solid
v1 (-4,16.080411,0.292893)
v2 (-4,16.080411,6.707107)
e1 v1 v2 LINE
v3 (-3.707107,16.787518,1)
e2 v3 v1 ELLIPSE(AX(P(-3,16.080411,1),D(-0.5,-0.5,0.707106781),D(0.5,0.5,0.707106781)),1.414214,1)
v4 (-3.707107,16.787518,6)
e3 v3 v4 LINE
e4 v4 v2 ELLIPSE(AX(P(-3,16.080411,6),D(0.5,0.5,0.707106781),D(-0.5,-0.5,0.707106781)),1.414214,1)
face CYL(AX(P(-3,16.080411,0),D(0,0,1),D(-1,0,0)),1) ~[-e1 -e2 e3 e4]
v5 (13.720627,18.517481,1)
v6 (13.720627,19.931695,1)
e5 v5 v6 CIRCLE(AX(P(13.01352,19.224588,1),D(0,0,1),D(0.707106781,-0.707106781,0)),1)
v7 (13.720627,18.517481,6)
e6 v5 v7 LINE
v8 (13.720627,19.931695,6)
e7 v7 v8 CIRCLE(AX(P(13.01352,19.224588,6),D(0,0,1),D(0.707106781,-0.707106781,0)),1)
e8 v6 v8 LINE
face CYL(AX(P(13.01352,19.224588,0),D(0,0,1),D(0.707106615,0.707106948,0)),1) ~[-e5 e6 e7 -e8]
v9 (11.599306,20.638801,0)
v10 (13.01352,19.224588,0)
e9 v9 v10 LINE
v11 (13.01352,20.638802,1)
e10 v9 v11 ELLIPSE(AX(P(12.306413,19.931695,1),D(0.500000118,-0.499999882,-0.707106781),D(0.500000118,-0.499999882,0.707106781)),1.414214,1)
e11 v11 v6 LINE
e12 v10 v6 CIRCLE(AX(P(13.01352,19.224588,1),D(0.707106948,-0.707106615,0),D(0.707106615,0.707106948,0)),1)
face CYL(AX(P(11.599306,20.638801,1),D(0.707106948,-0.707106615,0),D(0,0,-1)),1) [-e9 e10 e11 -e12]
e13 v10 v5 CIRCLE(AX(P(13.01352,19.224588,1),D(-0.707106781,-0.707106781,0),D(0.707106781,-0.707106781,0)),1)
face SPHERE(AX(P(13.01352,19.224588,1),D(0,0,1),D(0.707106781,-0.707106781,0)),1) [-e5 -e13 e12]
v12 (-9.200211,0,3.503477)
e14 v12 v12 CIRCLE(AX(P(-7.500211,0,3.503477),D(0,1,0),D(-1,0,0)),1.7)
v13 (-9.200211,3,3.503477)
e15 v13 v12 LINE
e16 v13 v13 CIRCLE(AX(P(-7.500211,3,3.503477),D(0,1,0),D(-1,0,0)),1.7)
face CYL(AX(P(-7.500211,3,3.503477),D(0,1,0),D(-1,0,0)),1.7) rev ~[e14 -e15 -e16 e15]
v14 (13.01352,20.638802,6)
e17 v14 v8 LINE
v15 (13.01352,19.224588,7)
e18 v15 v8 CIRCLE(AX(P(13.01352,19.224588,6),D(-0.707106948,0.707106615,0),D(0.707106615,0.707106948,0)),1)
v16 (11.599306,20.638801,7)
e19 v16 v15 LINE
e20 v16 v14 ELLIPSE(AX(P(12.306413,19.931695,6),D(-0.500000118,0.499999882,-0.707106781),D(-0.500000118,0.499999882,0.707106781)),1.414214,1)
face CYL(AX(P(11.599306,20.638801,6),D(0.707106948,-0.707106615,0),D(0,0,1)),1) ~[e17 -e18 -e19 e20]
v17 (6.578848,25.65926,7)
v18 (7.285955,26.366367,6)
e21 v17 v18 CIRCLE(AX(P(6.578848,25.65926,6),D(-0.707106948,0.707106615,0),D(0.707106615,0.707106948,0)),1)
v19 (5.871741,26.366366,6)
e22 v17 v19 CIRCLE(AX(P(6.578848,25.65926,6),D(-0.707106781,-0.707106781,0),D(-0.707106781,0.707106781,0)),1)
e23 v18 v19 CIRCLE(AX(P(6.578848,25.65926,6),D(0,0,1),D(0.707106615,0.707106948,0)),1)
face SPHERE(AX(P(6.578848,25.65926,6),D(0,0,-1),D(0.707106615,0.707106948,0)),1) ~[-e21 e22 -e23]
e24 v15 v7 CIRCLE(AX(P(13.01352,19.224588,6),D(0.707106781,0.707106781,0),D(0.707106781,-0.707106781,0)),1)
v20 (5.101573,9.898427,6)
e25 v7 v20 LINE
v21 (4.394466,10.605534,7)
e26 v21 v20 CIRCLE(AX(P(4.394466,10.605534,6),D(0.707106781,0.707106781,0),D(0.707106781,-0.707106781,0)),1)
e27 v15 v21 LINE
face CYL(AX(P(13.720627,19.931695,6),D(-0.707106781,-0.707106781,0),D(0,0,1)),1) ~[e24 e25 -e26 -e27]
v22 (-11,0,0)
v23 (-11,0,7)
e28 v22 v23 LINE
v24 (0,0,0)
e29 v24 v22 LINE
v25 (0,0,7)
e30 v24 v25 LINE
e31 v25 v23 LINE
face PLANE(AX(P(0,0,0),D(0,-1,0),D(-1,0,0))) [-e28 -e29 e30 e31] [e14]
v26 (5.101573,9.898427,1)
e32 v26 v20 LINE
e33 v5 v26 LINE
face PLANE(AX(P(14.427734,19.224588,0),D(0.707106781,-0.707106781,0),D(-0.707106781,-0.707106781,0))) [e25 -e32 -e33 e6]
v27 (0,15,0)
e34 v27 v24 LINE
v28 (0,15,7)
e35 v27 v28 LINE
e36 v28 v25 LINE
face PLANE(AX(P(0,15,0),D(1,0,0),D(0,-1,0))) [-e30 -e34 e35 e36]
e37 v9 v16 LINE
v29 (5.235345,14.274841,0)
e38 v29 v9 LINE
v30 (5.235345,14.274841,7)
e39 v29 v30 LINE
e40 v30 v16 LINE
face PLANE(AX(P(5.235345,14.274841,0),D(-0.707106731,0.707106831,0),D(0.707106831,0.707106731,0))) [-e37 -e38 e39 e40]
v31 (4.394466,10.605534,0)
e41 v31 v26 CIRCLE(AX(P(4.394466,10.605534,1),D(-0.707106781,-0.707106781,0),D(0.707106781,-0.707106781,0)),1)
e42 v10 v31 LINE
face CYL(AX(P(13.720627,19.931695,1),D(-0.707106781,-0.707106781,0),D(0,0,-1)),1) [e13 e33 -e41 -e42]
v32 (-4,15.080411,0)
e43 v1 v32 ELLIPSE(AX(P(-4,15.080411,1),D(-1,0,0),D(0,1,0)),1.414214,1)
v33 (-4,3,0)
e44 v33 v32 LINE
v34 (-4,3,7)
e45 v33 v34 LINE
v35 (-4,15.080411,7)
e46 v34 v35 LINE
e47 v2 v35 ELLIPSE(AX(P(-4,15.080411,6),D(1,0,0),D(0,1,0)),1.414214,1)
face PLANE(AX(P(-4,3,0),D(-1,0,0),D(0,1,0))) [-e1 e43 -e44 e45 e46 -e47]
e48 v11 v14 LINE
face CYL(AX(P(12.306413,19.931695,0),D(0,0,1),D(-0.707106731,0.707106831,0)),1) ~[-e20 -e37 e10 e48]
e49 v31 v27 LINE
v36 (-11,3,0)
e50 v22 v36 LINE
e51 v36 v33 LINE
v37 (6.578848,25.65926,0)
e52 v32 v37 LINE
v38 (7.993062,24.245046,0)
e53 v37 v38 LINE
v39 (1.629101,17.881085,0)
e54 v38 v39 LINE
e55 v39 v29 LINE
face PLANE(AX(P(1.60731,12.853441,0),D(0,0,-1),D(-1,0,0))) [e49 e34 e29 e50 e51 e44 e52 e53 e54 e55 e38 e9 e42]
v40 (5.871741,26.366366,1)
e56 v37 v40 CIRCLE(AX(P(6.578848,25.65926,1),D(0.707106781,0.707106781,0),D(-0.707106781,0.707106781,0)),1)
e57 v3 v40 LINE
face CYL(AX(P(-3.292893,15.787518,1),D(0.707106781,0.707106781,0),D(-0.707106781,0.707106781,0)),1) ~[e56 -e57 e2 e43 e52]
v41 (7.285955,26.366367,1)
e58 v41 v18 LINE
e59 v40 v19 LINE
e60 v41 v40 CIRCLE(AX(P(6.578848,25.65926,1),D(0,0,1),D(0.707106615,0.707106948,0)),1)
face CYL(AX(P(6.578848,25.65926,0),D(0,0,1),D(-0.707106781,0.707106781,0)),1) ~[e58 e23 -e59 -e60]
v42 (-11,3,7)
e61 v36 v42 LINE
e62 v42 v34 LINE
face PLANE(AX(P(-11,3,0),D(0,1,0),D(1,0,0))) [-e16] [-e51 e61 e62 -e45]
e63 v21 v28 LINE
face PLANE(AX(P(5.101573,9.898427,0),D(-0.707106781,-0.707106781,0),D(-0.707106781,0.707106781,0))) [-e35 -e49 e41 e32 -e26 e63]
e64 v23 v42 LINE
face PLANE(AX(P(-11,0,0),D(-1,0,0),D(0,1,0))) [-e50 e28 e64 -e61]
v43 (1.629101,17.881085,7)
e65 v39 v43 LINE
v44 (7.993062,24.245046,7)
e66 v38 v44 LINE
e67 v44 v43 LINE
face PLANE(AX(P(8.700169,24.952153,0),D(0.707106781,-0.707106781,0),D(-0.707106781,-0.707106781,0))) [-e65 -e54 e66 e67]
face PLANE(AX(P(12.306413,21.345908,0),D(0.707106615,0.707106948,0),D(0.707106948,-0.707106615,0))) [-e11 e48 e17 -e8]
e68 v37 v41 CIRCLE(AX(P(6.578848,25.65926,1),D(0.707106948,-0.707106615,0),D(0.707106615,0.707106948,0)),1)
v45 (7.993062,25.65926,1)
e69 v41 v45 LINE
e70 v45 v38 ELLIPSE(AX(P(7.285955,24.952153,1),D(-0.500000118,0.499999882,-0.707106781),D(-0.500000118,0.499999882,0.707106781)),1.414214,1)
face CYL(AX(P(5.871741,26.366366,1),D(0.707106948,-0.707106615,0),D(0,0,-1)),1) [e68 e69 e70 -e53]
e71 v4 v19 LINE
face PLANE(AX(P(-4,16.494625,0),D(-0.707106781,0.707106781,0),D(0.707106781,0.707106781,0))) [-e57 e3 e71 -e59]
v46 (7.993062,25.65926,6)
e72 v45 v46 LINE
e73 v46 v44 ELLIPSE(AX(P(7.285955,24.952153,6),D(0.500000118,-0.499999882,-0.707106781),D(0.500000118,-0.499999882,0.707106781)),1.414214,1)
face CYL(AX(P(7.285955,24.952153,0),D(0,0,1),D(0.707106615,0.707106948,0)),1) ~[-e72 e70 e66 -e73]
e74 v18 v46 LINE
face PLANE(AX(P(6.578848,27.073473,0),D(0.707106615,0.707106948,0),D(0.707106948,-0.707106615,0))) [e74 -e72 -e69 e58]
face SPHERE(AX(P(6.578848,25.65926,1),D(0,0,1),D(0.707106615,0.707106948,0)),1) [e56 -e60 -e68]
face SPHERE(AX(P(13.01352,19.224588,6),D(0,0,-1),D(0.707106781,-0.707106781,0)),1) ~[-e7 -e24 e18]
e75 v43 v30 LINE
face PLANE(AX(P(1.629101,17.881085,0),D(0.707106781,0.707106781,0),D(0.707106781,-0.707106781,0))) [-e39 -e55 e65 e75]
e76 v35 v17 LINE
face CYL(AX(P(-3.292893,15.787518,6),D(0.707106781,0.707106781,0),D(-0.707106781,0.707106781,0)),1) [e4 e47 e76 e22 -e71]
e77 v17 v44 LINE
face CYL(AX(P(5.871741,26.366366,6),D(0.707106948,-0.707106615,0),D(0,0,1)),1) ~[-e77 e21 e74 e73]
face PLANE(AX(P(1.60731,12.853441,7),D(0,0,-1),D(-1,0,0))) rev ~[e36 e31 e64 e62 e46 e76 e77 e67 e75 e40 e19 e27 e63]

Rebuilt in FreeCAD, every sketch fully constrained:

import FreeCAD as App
import Part
import Sketcher
from FreeCAD import Vector
Q = App.Units.Quantity


def edges_at(feature, points):
    """Names of the edges that pass closest to the given points."""
    edges = feature.Shape.Edges
    near = lambda p: min(range(len(edges)), key=lambda i: edges[i].distToShape(Part.Vertex(*p))[0])
    return sorted({f"Edge{near(p) + 1}" for p in points})

doc = App.newDocument("Part")
body = doc.addObject("PartDesign::Body", "Body")

# Sketch on XY plane
sketch1 = doc.addObject("Sketcher::SketchObject", "Sketch")
body.addObject(sketch1)
sketch1.AttachmentSupport = (doc.XY_Plane, [""])
sketch1.MapMode = "FlatFace"
sketch1.addGeometry(Part.LineSegment(Vector(-4, 16.5, 0), Vector(-4, 3, 0)), False)
sketch1.addGeometry(Part.LineSegment(Vector(-4, 3, 0), Vector(-11, 3, 0)), False)
sketch1.addGeometry(Part.LineSegment(Vector(-11, 3, 0), Vector(-11, 0, 0)), False)
sketch1.addGeometry(Part.LineSegment(Vector(-11, 0, 0), Vector(0, 0, 0)), False)
sketch1.addGeometry(Part.LineSegment(Vector(0, 0, 0), Vector(0, 15, 0)), False)
sketch1.addGeometry(Part.LineSegment(Vector(0, 15, 0), Vector(5.1, 9.9, 0)), False)
sketch1.addGeometry(Part.LineSegment(Vector(5.1, 9.9, 0), Vector(14.4, 19.2, 0)), False)
sketch1.addGeometry(Part.LineSegment(Vector(14.4, 19.2, 0), Vector(12.3, 21.3, 0)), False)
sketch1.addGeometry(Part.LineSegment(Vector(12.3, 21.3, 0), Vector(5.2, 14.3, 0)), False)
sketch1.addGeometry(Part.LineSegment(Vector(5.2, 14.3, 0), Vector(1.6, 17.9, 0)), False)
sketch1.addGeometry(Part.LineSegment(Vector(1.6, 17.9, 0), Vector(8.7, 25, 0)), False)
sketch1.addGeometry(Part.LineSegment(Vector(8.7, 25, 0), Vector(6.6, 27.1, 0)), False)
sketch1.addGeometry(Part.LineSegment(Vector(6.6, 27.1, 0), Vector(-4, 16.5, 0)), False)
sketch1.addConstraint(Sketcher.Constraint("Coincident", 0, 2, 1, 1))
sketch1.addConstraint(Sketcher.Constraint("Coincident", 1, 2, 2, 1))
sketch1.addConstraint(Sketcher.Constraint("Coincident", 2, 2, 3, 1))
sketch1.addConstraint(Sketcher.Constraint("Coincident", 3, 2, 4, 1))
sketch1.addConstraint(Sketcher.Constraint("Coincident", 4, 2, 5, 1))
sketch1.addConstraint(Sketcher.Constraint("Coincident", 5, 2, 6, 1))
sketch1.addConstraint(Sketcher.Constraint("Coincident", 6, 2, 7, 1))
sketch1.addConstraint(Sketcher.Constraint("Coincident", 7, 2, 8, 1))
sketch1.addConstraint(Sketcher.Constraint("Coincident", 8, 2, 9, 1))
sketch1.addConstraint(Sketcher.Constraint("Coincident", 9, 2, 10, 1))
sketch1.addConstraint(Sketcher.Constraint("Coincident", 10, 2, 11, 1))
sketch1.addConstraint(Sketcher.Constraint("Coincident", 11, 2, 12, 1))
sketch1.addConstraint(Sketcher.Constraint("Coincident", 12, 2, 0, 1))
sketch1.addConstraint(Sketcher.Constraint("Vertical", 0))
sketch1.addConstraint(Sketcher.Constraint("Horizontal", 1))
sketch1.addConstraint(Sketcher.Constraint("Vertical", 2))
sketch1.addConstraint(Sketcher.Constraint("Horizontal", 3))
sketch1.addConstraint(Sketcher.Constraint("Vertical", 4))
sketch1.addConstraint(Sketcher.Constraint("Coincident", 3, 2, -1, 1))
sketch1.addConstraint(Sketcher.Constraint("Perpendicular", 5, 6))
sketch1.addConstraint(Sketcher.Constraint("Perpendicular", 6, 7))
sketch1.addConstraint(Sketcher.Constraint("Perpendicular", 7, 8))
sketch1.addConstraint(Sketcher.Constraint("Perpendicular", 8, 9))
sketch1.addConstraint(Sketcher.Constraint("Perpendicular", 9, 10))
sketch1.addConstraint(Sketcher.Constraint("Perpendicular", 10, 11))
sketch1.addConstraint(Sketcher.Constraint("Perpendicular", 11, 12))
sketch1.addConstraint(Sketcher.Constraint("Equal", 8, 10))
sketch1.addConstraint(Sketcher.Constraint("Equal", 7, 11))
sketch1.addConstraint(Sketcher.Constraint("DistanceX", 1, 2, 1, 1, Q("7 mm")))
sketch1.addConstraint(Sketcher.Constraint("DistanceX", 3, 1, 3, 2, Q("11 mm")))
sketch1.addConstraint(Sketcher.Constraint("DistanceY", 2, 2, 2, 1, Q("3 mm")))
sketch1.addConstraint(Sketcher.Constraint("DistanceY", 4, 1, 4, 2, Q("15 mm")))
sketch1.addConstraint(Sketcher.Constraint("Angle", 5, Q("-45 deg")))
sketch1.addConstraint(Sketcher.Constraint("Distance", 7, Q("3 mm")))
sketch1.addConstraint(Sketcher.Constraint("Distance", 8, Q("10 mm")))
sketch1.addConstraint(Sketcher.Constraint("Distance", 9, Q("5.099999 mm")))
sketch1.addConstraint(Sketcher.Constraint("DistanceX", -1, 1, 9, 2, Q("1.629101 mm")))
sketch1.addConstraint(Sketcher.Constraint("DistanceY", 0, 2, 0, 1, Q("13.494625 mm")))
pad1 = doc.addObject("PartDesign::Pad", "Pad")
body.addObject(pad1)
pad1.Profile = sketch1
pad1.Length = 7

# Sketch on XZ plane
sketch2 = doc.addObject("Sketcher::SketchObject", "Sketch001")
body.addObject(sketch2)
sketch2.AttachmentSupport = (doc.XZ_Plane, [""])
sketch2.MapMode = "FlatFace"
sketch2.AttachmentOffset = App.Placement(Vector(0, 0, -3), App.Rotation())
sketch2.addGeometry(Part.Circle(Vector(-7.5, 3.5, 0), Vector(0, 0, 1), 1.7), False)
sketch2.addConstraint(Sketcher.Constraint("Diameter", 0, Q("3.4 mm")))
sketch2.addConstraint(Sketcher.Constraint("DistanceX", 0, 3, -1, 1, Q("7.500211 mm")))
sketch2.addConstraint(Sketcher.Constraint("DistanceY", -1, 1, 0, 3, Q("3.503477 mm")))
pocket1 = doc.addObject("PartDesign::Pocket", "Pocket")
body.addObject(pocket1)
pocket1.Profile = sketch2
pocket1.Length = 5
pocket1.Reversed = True
doc.recompute()

fillet = doc.addObject("PartDesign::Fillet", "Fillet")
body.addObject(fillet)
fillet.Base = (pocket1, edges_at(pocket1, [
    (8.7, 24.952, 3.5),
    (12.306, 21.346, 3.5),
    (7.64, 26.013, 7),
    (1.289, 21.784, 7),
    (6.579, 27.073, 3.5),
    (7.64, 26.013, 0),
    (1.289, 21.784, 0),
    (13.367, 20.285, 7),
    (13.367, 20.285, 0),
    (14.428, 19.225, 3.5),
    (9.765, 14.562, 7),
    (9.765, 14.562, 0),
    (-4, 16.495, 3.5),
]))
fillet.Radius = 1

doc.recompute()
